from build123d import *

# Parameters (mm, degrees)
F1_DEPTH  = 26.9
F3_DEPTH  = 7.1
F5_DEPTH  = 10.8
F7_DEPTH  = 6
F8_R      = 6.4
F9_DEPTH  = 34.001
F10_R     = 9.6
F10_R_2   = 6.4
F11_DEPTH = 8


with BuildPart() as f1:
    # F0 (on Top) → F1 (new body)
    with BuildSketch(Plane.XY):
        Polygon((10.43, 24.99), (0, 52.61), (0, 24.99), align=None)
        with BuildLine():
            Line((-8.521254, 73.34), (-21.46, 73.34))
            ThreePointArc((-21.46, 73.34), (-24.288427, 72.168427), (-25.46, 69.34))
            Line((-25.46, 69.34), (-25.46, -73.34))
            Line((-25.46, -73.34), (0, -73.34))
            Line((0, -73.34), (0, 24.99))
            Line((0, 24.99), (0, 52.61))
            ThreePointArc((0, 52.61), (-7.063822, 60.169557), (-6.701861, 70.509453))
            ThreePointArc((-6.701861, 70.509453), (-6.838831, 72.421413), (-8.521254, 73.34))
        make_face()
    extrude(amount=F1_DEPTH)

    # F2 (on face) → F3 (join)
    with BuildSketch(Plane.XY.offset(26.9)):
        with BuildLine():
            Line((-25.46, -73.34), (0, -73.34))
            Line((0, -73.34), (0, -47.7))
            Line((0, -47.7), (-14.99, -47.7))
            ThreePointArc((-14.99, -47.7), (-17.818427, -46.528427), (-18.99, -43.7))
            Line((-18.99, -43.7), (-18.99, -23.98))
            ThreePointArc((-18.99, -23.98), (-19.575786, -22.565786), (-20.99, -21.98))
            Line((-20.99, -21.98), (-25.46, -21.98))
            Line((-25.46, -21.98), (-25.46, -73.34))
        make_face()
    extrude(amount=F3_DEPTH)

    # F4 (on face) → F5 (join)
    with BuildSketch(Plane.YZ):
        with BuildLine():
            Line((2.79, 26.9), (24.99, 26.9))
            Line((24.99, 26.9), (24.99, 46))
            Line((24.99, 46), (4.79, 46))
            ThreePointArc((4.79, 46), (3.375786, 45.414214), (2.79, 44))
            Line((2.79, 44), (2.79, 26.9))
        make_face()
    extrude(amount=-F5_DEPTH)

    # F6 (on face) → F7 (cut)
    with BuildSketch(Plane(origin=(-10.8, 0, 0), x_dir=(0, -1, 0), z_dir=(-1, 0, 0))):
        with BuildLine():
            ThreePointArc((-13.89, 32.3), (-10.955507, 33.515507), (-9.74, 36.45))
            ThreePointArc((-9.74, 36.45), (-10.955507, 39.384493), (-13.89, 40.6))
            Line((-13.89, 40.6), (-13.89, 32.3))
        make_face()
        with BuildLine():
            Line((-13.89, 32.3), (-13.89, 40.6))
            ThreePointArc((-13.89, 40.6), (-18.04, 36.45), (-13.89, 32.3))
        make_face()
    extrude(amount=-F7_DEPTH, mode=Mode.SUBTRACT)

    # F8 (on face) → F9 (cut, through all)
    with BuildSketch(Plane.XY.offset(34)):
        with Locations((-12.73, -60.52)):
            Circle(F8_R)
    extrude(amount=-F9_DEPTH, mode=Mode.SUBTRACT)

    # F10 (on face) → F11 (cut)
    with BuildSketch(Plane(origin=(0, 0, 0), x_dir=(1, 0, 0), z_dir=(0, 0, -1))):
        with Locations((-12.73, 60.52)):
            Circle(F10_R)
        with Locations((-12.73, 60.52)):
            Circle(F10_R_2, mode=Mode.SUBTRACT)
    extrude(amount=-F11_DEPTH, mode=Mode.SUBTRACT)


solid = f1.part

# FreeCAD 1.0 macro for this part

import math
import FreeCAD as App
import Part
import Sketcher

V = App.Vector
Q = App.Units.Quantity

doc = App.newDocument("Part")
body = doc.addObject("PartDesign::Body", "Body")

sketch1 = doc.addObject("Sketcher::SketchObject", "Sketch")
body.addObject(sketch1)
sketch1.AttachmentSupport = (doc.XY_Plane, [""])
sketch1.MapMode = "FlatFace"
sketch1.addGeometry([
    Part.LineSegment(V(10.4, 25, 0), V(0, 52.6, 0)),
    Part.ArcOfCircle(Part.Circle(V(5.6, 64.9, 0), V(0, 0, 1), 13.5), math.radians(155), math.radians(246)),
    Part.ArcOfCircle(Part.Circle(V(-8.5, 71.3, 0), V(0, 0, 1), 2), math.radians(-25), math.radians(90)),
    Part.LineSegment(V(-8.5, 73.3, 0), V(-21.5, 73.3, 0)),
    Part.ArcOfCircle(Part.Circle(V(-21.5, 69.3, 0), V(0, 0, 1), 4), math.radians(90), math.radians(180)),
    Part.LineSegment(V(-25.5, 69.3, 0), V(-25.5, -73.3, 0)),
    Part.LineSegment(V(-25.5, -73.3, 0), V(0, -73.3, 0)),
    Part.LineSegment(V(0, -73.3, 0), V(0, 25, 0)),
    Part.LineSegment(V(0, 25, 0), V(10.4, 25, 0)),
], False)
sketch1.addConstraint([
    Sketcher.Constraint("Coincident", 0, 2, 1, 2),
    Sketcher.Constraint("Tangent", 1, 1, 2, 1),
    Sketcher.Constraint("Tangent", 2, 2, 3, 1),
    Sketcher.Constraint("Tangent", 3, 2, 4, 1),
    Sketcher.Constraint("Tangent", 4, 2, 5, 1),
    Sketcher.Constraint("Coincident", 5, 2, 6, 1),
    Sketcher.Constraint("Coincident", 6, 2, 7, 1),
    Sketcher.Constraint("Coincident", 7, 2, 8, 1),
    Sketcher.Constraint("Coincident", 8, 2, 0, 1),
    Sketcher.Constraint("Horizontal", 3),
    Sketcher.Constraint("Vertical", 5),
    Sketcher.Constraint("Horizontal", 6),
    Sketcher.Constraint("Vertical", 7),
    Sketcher.Constraint("Horizontal", 8),
    Sketcher.Constraint("PointOnObject", 0, 2, -2),
    Sketcher.Constraint("PointOnObject", 6, 2, -2),
    Sketcher.Constraint("Radius", 2, Q("1.999999 mm")),
    Sketcher.Constraint("Radius", 4, Q("4 mm")),
    Sketcher.Constraint("Radius", 1, Q("13.5 mm")),
    Sketcher.Constraint("DistanceX", 6, 1, 6, 2, Q("25.46 mm")),
    Sketcher.Constraint("DistanceX", 8, 1, 8, 2, Q("10.43 mm")),
    Sketcher.Constraint("DistanceY", 5, 2, 5, 1, Q("142.68 mm")),
    Sketcher.Constraint("DistanceY", 7, 1, 7, 2, Q("98.33 mm")),
    Sketcher.Constraint("DistanceY", -1, 1, 2, 3, Q("71.340001 mm")),
    Sketcher.Constraint("DistanceY", -1, 1, 0, 2, Q("52.61 mm")),
    Sketcher.Constraint("DistanceX", 3, 2, 3, 1, Q("12.938746 mm")),
])
pad1 = doc.addObject("PartDesign::Pad", "Pad")
body.addObject(pad1)
pad1.Profile = sketch1
pad1.Length = 26.9

sketch2 = doc.addObject("Sketcher::SketchObject", "Sketch001")
body.addObject(sketch2)
sketch2.AttachmentSupport = (doc.XY_Plane, [""])
sketch2.MapMode = "FlatFace"
sketch2.AttachmentOffset = App.Placement(V(0, 0, 26.9), App.Rotation())
sketch2.addGeometry([
    Part.LineSegment(V(-25.5, -73.3, 0), V(0, -73.3, 0)),
    Part.LineSegment(V(0, -73.3, 0), V(0, -47.7, 0)),
    Part.LineSegment(V(0, -47.7, 0), V(-15, -47.7, 0)),
    Part.ArcOfCircle(Part.Circle(V(-15, -43.7, 0), V(0, 0, 1), 4), math.radians(-180), math.radians(-90)),
    Part.LineSegment(V(-19, -43.7, 0), V(-19, -24, 0)),
    Part.ArcOfCircle(Part.Circle(V(-21, -24, 0), V(0, 0, 1), 2), math.radians(0), math.radians(90)),
    Part.LineSegment(V(-21, -22, 0), V(-25.5, -22, 0)),
    Part.LineSegment(V(-25.5, -22, 0), V(-25.5, -73.3, 0)),
], False)
sketch2.addConstraint([
    Sketcher.Constraint("Coincident", 0, 2, 1, 1),
    Sketcher.Constraint("Coincident", 1, 2, 2, 1),
    Sketcher.Constraint("Tangent", 2, 2, 3, 2),
    Sketcher.Constraint("Tangent", 3, 1, 4, 1),
    Sketcher.Constraint("Tangent", 4, 2, 5, 1),
    Sketcher.Constraint("Tangent", 5, 2, 6, 1),
    Sketcher.Constraint("Coincident", 6, 2, 7, 1),
    Sketcher.Constraint("Coincident", 7, 2, 0, 1),
    Sketcher.Constraint("Horizontal", 0),
    Sketcher.Constraint("Vertical", 1),
    Sketcher.Constraint("Horizontal", 2),
    Sketcher.Constraint("Vertical", 4),
    Sketcher.Constraint("Horizontal", 6),
    Sketcher.Constraint("Vertical", 7),
    Sketcher.Constraint("PointOnObject", 0, 2, -2),
    Sketcher.Constraint("Radius", 3, Q("4 mm")),
    Sketcher.Constraint("Radius", 5, Q("1.999999 mm")),
    Sketcher.Constraint("DistanceX", 0, 1, 0, 2, Q("25.46 mm")),
    Sketcher.Constraint("DistanceX", 2, 2, 2, 1, Q("14.99 mm")),
    Sketcher.Constraint("DistanceY", 1, 1, 1, 2, Q("25.64 mm")),
    Sketcher.Constraint("DistanceY", 4, 1, 4, 2, Q("19.72 mm")),
    Sketcher.Constraint("DistanceY", 3, 3, -1, 1, Q("43.7 mm")),
])
pad2 = doc.addObject("PartDesign::Pad", "Pad001")
body.addObject(pad2)
pad2.Profile = sketch2
pad2.Length = 7.1

sketch3 = doc.addObject("Sketcher::SketchObject", "Sketch002")
body.addObject(sketch3)
sketch3.AttachmentSupport = (doc.YZ_Plane, [""])
sketch3.MapMode = "FlatFace"
sketch3.addGeometry([
    Part.LineSegment(V(2.8, 26.9, 0), V(25, 26.9, 0)),
    Part.LineSegment(V(25, 26.9, 0), V(25, 46, 0)),
    Part.LineSegment(V(25, 46, 0), V(4.8, 46, 0)),
    Part.ArcOfCircle(Part.Circle(V(4.8, 44, 0), V(0, 0, 1), 2), math.radians(90), math.radians(180)),
    Part.LineSegment(V(2.8, 44, 0), V(2.8, 26.9, 0)),
], False)
sketch3.addConstraint([
    Sketcher.Constraint("Coincident", 0, 2, 1, 1),
    Sketcher.Constraint("Coincident", 1, 2, 2, 1),
    Sketcher.Constraint("Tangent", 2, 2, 3, 1),
    Sketcher.Constraint("Tangent", 3, 2, 4, 1),
    Sketcher.Constraint("Coincident", 4, 2, 0, 1),
    Sketcher.Constraint("Horizontal", 0),
    Sketcher.Constraint("Vertical", 1),
    Sketcher.Constraint("Horizontal", 2),
    Sketcher.Constraint("Vertical", 4),
    Sketcher.Constraint("Radius", 3, Q("1.999999 mm")),
    Sketcher.Constraint("DistanceX", 0, 1, 0, 2, Q("22.2 mm")),
    Sketcher.Constraint("DistanceY", 1, 1, 1, 2, Q("19.1 mm")),
    Sketcher.Constraint("DistanceY", -1, 1, 3, 3, Q("44.000001 mm")),
    Sketcher.Constraint("DistanceX", -1, 1, 3, 3, Q("4.789999 mm")),
])
pad3 = doc.addObject("PartDesign::Pad", "Pad002")
body.addObject(pad3)
pad3.Profile = sketch3
pad3.Length = 10.8
pad3.Reversed = True

sketch4 = doc.addObject("Sketcher::SketchObject", "Sketch003")
body.addObject(sketch4)
sketch4.AttachmentSupport = (doc.YZ_Plane, [""])
sketch4.MapMode = "FlatFace"
sketch4.AttachmentOffset = App.Placement(V(0, 0, -10.8), App.Rotation())
sketch4.addGeometry([
    Part.ArcOfCircle(Part.Circle(V(13.9, 36.5, 0), V(0, 0, 1), 4.2), math.radians(-180), math.radians(-90)),
    Part.ArcOfCircle(Part.Circle(V(13.9, 36.4, 0), V(0, 0, 1), 4.2), math.radians(90), math.radians(180)),
    Part.ArcOfCircle(Part.Circle(V(13.9, 36.5, 0), V(0, 0, 1), 4.2), math.radians(-90), math.radians(90)),
], False)
sketch4.addConstraint([
    Sketcher.Constraint("Tangent", 0, 1, 1, 2),
    Sketcher.Constraint("Tangent", 1, 1, 2, 2),
    Sketcher.Constraint("Tangent", 2, 1, 0, 2),
    Sketcher.Constraint("Horizontal", 2, 3, 0, 1),
    Sketcher.Constraint("Vertical", 2, 3, 1, 1),
    Sketcher.Constraint("Vertical", 1, 1, 2, 1),
    Sketcher.Constraint("Radius", 0, Q("4.15 mm")),
    Sketcher.Constraint("DistanceY", -1, 1, 1, 1, Q("40.6 mm")),
    Sketcher.Constraint("DistanceX", -1, 1, 0, 3, Q("13.89 mm")),
])
pocket1 = doc.addObject("PartDesign::Pocket", "Pocket")
body.addObject(pocket1)
pocket1.Profile = sketch4
pocket1.Length = 6
pocket1.Reversed = True

sketch5 = doc.addObject("Sketcher::SketchObject", "Sketch004")
body.addObject(sketch5)
sketch5.AttachmentSupport = (doc.XY_Plane, [""])
sketch5.MapMode = "FlatFace"
sketch5.AttachmentOffset = App.Placement(V(0, 0, 34), App.Rotation())
sketch5.addGeometry(Part.Circle(V(-13, -61, 0), V(0, 0, 1), 6), False)
sketch5.addConstraint([
    Sketcher.Constraint("Diameter", 0, Q("12.8 mm")),
    Sketcher.Constraint("DistanceX", 0, 3, -1, 1, Q("12.73 mm")),
    Sketcher.Constraint("DistanceY", 0, 3, -1, 1, Q("60.52 mm")),
])
pocket2 = doc.addObject("PartDesign::Pocket", "Pocket001")
body.addObject(pocket2)
pocket2.Profile = sketch5
pocket2.Type = "ThroughAll"

sketch6 = doc.addObject("Sketcher::SketchObject", "Sketch005")
body.addObject(sketch6)
sketch6.AttachmentSupport = (doc.XY_Plane, [""])
sketch6.MapMode = "FlatFace"
sketch6.addGeometry([
    Part.Circle(V(-13, -61, 0), V(0, 0, 1), 10),
    Part.Circle(V(-13, -61, 0), V(0, 0, 1), 6),
], False)
sketch6.addConstraint([
    Sketcher.Constraint("Coincident", 1, 3, 0, 3),
    Sketcher.Constraint("Diameter", 0, Q("19.2 mm")),
    Sketcher.Constraint("Diameter", 1, Q("12.8 mm")),
    Sketcher.Constraint("DistanceX", 0, 3, -1, 1, Q("12.73 mm")),
    Sketcher.Constraint("DistanceY", 0, 3, -1, 1, Q("60.52 mm")),
])
pocket3 = doc.addObject("PartDesign::Pocket", "Pocket002")
body.addObject(pocket3)
pocket3.Profile = sketch6
pocket3.Length = 8
pocket3.Reversed = True

doc.recompute()
